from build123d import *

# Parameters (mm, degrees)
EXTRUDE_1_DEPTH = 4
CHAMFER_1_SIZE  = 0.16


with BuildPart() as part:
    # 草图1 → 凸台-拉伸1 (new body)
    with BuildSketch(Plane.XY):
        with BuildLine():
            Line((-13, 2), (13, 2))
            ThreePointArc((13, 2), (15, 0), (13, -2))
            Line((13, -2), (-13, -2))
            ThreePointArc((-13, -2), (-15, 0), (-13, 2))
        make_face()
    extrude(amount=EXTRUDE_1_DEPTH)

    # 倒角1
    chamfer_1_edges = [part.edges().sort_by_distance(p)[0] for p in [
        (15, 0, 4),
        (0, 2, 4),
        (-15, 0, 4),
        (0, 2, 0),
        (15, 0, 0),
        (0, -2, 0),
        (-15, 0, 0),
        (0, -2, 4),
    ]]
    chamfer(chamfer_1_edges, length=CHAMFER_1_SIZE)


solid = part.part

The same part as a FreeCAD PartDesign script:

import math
import FreeCAD as App
import Part
import Sketcher
from FreeCAD import Vector
Q = App.Units.Quantity


def edges_at(feature, points):
    """Names of the edges that pass closest to the given points."""
    edges = feature.Shape.Edges
    near = lambda p: min(range(len(edges)), key=lambda i: edges[i].distToShape(Part.Vertex(*p))[0])
    return sorted({f"Edge{near(p) + 1}" for p in points})

doc = App.newDocument("Part")
params = doc.addObject("Spreadsheet::Sheet", "Params")
for row, (alias, value) in enumerate([
    ("sketch1_radius", "2 mm"),
    ("sketch1_width", "26 mm"),
    ("pad1_length", "4 mm"),
    ("chamfer_size", "0.16 mm"),
], start=1):
    params.set(f"A{row}", alias)
    params.set(f"B{row}", "=" + value)
    params.setAlias(f"B{row}", alias)

body = doc.addObject("PartDesign::Body", "Body")

# Sketch on XY plane
sketch1 = doc.addObject("Sketcher::SketchObject", "Sketch")
body.addObject(sketch1)
sketch1.AttachmentSupport = (doc.XY_Plane, [""])
sketch1.MapMode = "FlatFace"
sketch1.addGeometry(Part.LineSegment(Vector(13, 2, 0), Vector(-13, 2, 0)), False)
sketch1.addGeometry(Part.ArcOfCircle(Part.Circle(Vector(-13, 0, 0), Vector(0, 0, 1), 2), math.radians(90), math.radians(270)), False)
sketch1.addGeometry(Part.LineSegment(Vector(-13, -2, 0), Vector(13, -2, 0)), False)
sketch1.addGeometry(Part.ArcOfCircle(Part.Circle(Vector(13, 0, 0), Vector(0, 0, 1), 2), math.radians(-90), math.radians(90)), False)
sketch1.addConstraint(Sketcher.Constraint("Tangent", 0, 2, 1, 1))
sketch1.addConstraint(Sketcher.Constraint("Tangent", 1, 2, 2, 1))
sketch1.addConstraint(Sketcher.Constraint("Tangent", 2, 2, 3, 1))
sketch1.addConstraint(Sketcher.Constraint("Tangent", 3, 2, 0, 1))
sketch1.addConstraint(Sketcher.Constraint("Horizontal", 0))
sketch1.addConstraint(Sketcher.Constraint("Horizontal", 2))
sketch1.addConstraint(Sketcher.Constraint("Symmetric", 1, 3, 3, 3, -1, 1))
sketch1.addConstraint(Sketcher.Constraint("Radius", 1, Q("2 mm")))
sketch1.addConstraint(Sketcher.Constraint("DistanceX", 0, 2, 0, 1, Q("26 mm")))
sketch1.setExpression("Constraints[7]", "Params.sketch1_radius")
sketch1.setExpression("Constraints[8]", "Params.sketch1_width")
pad1 = doc.addObject("PartDesign::Pad", "Pad")
body.addObject(pad1)
pad1.Profile = sketch1
pad1.setExpression("Length", "Params.pad1_length")
doc.recompute()

chamfer = doc.addObject("PartDesign::Chamfer", "Chamfer")
body.addObject(chamfer)
chamfer.Base = (pad1, edges_at(pad1, [
    (15, 0, 4),
    (0, 2, 4),
    (-15, 0, 4),
    (0, 2, 0),
    (15, 0, 0),
    (0, -2, 0),
    (-15, 0, 0),
    (0, -2, 4),
]))
chamfer.setExpression("Size", "Params.chamfer_size")

doc.recompute()
